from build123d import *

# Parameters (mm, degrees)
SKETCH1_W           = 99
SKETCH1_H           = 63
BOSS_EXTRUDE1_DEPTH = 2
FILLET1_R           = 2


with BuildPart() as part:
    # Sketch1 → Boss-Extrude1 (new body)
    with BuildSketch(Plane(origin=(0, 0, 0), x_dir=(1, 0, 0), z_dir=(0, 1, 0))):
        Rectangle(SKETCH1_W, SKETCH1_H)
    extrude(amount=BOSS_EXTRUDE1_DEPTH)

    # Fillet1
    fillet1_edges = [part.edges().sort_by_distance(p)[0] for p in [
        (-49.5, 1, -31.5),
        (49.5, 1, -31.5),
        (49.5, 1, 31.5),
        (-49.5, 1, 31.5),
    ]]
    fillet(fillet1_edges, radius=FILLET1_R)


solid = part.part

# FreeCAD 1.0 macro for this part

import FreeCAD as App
import Part
import Sketcher
Q = App.Units.Quantity


def edges_at(feature, points):
    """Names of the edges that pass closest to the given points."""
    edges = feature.Shape.Edges
    near = lambda p: min(range(len(edges)), key=lambda i: edges[i].distToShape(Part.Vertex(*p))[0])
    return sorted({f"Edge{near(p) + 1}" for p in points})

doc = App.newDocument("Part")
params = doc.addObject("Spreadsheet::Sheet", "Params")
for row, (alias, value) in enumerate([
    ("sketch1_width", "99 mm"),
    ("sketch1_height", "63 mm"),
    ("pad1_length", "2 mm"),
    ("fillet_radius", "2 mm"),
], start=1):
    params.set(f"A{row}", alias)
    params.set(f"B{row}", "=" + value)
    params.setAlias(f"B{row}", alias)

body = doc.addObject("PartDesign::Body", "Body")

# Sketch on XZ plane
sketch1 = body.newObject("Sketcher::SketchObject", "Sketch")
sketch1.AttachmentSupport = (doc.getObject("XZ_Plane"), [""])
sketch1.MapMode = "FlatFace"
sketch1.addGeometry([
    Part.LineSegment(App.Vector(-50, -32, 0), App.Vector(-50, 32, 0)),
    Part.LineSegment(App.Vector(-50, 32, 0), App.Vector(50, 32, 0)),
    Part.LineSegment(App.Vector(50, 32, 0), App.Vector(50, -32, 0)),
    Part.LineSegment(App.Vector(50, -32, 0), App.Vector(-50, -32, 0)),
], False)
sketch1.addConstraint([
    Sketcher.Constraint("Coincident", 0, 2, 1, 1),
    Sketcher.Constraint("Coincident", 1, 2, 2, 1),
    Sketcher.Constraint("Coincident", 2, 2, 3, 1),
    Sketcher.Constraint("Coincident", 3, 2, 0, 1),
    Sketcher.Constraint("Vertical", 0),
    Sketcher.Constraint("Horizontal", 1),
    Sketcher.Constraint("Vertical", 2),
    Sketcher.Constraint("Horizontal", 3),
    Sketcher.Constraint("Symmetric", 0, 2, 2, 2, -1, 1),
    Sketcher.Constraint("DistanceX", 1, 1, 1, 2, Q("99 mm")),
    Sketcher.Constraint("DistanceY", 0, 1, 0, 2, Q("63 mm")),
])
sketch1.setExpression("Constraints[9]", "Params.sketch1_width")
sketch1.setExpression("Constraints[10]", "Params.sketch1_height")
pad1 = body.newObject("PartDesign::Pad", "Pad")
pad1.Profile = sketch1
pad1.setExpression("Length", "Params.pad1_length")
pad1.Reversed = True
doc.recompute()

fillet = body.newObject("PartDesign::Fillet", "Fillet")
fillet.Base = (pad1, edges_at(pad1, [
    (-49.5, 1, -31.5),
    (49.5, 1, -31.5),
    (49.5, 1, 31.5),
    (-49.5, 1, 31.5),
]))
fillet.setExpression("Radius", "Params.fillet_radius")

doc.recompute()
